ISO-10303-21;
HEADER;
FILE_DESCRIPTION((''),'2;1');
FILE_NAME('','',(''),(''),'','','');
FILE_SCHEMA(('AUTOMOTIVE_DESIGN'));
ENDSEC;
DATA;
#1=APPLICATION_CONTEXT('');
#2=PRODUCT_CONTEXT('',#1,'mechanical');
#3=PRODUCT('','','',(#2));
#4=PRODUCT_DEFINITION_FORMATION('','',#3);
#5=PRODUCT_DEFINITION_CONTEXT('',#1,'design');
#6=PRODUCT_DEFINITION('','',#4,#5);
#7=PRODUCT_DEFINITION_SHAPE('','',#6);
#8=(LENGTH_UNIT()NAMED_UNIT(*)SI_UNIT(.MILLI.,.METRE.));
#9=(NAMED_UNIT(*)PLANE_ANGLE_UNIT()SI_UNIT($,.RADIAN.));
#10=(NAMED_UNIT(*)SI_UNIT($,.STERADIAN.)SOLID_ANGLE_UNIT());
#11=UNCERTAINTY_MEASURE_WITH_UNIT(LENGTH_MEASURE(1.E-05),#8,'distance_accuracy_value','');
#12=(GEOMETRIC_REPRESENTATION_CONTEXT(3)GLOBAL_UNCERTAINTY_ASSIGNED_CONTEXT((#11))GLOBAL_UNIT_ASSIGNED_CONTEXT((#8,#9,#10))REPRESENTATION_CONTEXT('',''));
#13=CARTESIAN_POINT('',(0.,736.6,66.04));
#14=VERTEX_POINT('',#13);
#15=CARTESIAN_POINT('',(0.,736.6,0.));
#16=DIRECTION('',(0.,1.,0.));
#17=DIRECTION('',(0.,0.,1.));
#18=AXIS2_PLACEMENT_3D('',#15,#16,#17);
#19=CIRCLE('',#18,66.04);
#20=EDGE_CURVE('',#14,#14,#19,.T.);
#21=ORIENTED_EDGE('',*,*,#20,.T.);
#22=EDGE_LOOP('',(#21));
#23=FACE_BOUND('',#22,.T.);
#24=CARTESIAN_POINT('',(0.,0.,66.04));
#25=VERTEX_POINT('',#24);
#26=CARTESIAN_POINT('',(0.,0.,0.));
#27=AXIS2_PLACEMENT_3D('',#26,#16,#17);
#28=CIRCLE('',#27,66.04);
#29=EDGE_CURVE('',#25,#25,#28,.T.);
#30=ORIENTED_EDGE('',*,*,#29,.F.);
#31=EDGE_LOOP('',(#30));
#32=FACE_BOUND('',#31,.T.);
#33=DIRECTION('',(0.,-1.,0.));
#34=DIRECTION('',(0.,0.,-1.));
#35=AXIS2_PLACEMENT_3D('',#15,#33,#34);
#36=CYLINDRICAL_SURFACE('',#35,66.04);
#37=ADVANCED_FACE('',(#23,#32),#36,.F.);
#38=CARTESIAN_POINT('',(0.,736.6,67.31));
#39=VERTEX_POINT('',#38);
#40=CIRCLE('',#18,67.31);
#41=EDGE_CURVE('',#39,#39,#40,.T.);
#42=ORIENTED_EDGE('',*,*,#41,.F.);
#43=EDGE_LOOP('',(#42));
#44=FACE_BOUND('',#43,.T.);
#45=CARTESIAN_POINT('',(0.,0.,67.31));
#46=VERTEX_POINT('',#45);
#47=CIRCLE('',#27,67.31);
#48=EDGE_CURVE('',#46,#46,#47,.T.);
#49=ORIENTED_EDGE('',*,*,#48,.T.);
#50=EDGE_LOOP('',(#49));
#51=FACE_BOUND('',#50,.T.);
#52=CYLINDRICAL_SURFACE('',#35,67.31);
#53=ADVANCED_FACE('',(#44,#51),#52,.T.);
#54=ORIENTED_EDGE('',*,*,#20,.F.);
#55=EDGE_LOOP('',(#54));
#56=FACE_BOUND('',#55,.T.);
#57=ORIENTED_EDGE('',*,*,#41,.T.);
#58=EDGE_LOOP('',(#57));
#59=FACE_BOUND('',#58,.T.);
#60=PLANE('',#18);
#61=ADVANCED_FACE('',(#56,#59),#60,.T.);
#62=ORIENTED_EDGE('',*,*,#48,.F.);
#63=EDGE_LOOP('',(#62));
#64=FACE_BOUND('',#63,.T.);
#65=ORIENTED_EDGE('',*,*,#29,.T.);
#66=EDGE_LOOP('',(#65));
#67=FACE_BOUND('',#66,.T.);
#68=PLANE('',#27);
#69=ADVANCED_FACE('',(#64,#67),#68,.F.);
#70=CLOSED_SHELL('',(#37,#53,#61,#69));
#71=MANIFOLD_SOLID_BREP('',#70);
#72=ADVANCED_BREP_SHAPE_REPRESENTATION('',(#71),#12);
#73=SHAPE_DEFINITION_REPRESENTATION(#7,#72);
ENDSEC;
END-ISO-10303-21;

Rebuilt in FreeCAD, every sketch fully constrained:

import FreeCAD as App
import Part
import Sketcher
from FreeCAD import Vector
Q = App.Units.Quantity

doc = App.newDocument("Part")
params = doc.addObject("Spreadsheet::Sheet", "Params")
for row, (alias, value) in enumerate([
    ("sketch1_diameter", "5.3 in"),
    ("sketch1_diameter2", "5.2 in"),
    ("pad1_length", "29 in"),
], start=1):
    params.set(f"A{row}", alias)
    params.set(f"B{row}", "=" + value)
    params.setAlias(f"B{row}", alias)

body = doc.addObject("PartDesign::Body", "Body")

# Sketch on XZ plane
sketch1 = doc.addObject("Sketcher::SketchObject", "Sketch")
body.addObject(sketch1)
sketch1.AttachmentSupport = (doc.XZ_Plane, [""])
sketch1.MapMode = "FlatFace"
sketch1.addGeometry(Part.Circle(Vector(0, 0, 0), Vector(0, 0, 1), 67), False)
sketch1.addGeometry(Part.Circle(Vector(0, 0, 0), Vector(0, 0, 1), 66), False)
sketch1.addConstraint(Sketcher.Constraint("Coincident", 0, 3, -1, 1))
sketch1.addConstraint(Sketcher.Constraint("Coincident", 1, 3, -1, 1))
sketch1.addConstraint(Sketcher.Constraint("Diameter", 0, Q("5.3 in")))
sketch1.addConstraint(Sketcher.Constraint("Diameter", 1, Q("5.2 in")))
sketch1.setExpression("Constraints[2]", "Params.sketch1_diameter")
sketch1.setExpression("Constraints[3]", "Params.sketch1_diameter2")
pad1 = doc.addObject("PartDesign::Pad", "Pad")
body.addObject(pad1)
pad1.Profile = sketch1
pad1.setExpression("Length", "Params.pad1_length")
pad1.Reversed = True

doc.recompute()
